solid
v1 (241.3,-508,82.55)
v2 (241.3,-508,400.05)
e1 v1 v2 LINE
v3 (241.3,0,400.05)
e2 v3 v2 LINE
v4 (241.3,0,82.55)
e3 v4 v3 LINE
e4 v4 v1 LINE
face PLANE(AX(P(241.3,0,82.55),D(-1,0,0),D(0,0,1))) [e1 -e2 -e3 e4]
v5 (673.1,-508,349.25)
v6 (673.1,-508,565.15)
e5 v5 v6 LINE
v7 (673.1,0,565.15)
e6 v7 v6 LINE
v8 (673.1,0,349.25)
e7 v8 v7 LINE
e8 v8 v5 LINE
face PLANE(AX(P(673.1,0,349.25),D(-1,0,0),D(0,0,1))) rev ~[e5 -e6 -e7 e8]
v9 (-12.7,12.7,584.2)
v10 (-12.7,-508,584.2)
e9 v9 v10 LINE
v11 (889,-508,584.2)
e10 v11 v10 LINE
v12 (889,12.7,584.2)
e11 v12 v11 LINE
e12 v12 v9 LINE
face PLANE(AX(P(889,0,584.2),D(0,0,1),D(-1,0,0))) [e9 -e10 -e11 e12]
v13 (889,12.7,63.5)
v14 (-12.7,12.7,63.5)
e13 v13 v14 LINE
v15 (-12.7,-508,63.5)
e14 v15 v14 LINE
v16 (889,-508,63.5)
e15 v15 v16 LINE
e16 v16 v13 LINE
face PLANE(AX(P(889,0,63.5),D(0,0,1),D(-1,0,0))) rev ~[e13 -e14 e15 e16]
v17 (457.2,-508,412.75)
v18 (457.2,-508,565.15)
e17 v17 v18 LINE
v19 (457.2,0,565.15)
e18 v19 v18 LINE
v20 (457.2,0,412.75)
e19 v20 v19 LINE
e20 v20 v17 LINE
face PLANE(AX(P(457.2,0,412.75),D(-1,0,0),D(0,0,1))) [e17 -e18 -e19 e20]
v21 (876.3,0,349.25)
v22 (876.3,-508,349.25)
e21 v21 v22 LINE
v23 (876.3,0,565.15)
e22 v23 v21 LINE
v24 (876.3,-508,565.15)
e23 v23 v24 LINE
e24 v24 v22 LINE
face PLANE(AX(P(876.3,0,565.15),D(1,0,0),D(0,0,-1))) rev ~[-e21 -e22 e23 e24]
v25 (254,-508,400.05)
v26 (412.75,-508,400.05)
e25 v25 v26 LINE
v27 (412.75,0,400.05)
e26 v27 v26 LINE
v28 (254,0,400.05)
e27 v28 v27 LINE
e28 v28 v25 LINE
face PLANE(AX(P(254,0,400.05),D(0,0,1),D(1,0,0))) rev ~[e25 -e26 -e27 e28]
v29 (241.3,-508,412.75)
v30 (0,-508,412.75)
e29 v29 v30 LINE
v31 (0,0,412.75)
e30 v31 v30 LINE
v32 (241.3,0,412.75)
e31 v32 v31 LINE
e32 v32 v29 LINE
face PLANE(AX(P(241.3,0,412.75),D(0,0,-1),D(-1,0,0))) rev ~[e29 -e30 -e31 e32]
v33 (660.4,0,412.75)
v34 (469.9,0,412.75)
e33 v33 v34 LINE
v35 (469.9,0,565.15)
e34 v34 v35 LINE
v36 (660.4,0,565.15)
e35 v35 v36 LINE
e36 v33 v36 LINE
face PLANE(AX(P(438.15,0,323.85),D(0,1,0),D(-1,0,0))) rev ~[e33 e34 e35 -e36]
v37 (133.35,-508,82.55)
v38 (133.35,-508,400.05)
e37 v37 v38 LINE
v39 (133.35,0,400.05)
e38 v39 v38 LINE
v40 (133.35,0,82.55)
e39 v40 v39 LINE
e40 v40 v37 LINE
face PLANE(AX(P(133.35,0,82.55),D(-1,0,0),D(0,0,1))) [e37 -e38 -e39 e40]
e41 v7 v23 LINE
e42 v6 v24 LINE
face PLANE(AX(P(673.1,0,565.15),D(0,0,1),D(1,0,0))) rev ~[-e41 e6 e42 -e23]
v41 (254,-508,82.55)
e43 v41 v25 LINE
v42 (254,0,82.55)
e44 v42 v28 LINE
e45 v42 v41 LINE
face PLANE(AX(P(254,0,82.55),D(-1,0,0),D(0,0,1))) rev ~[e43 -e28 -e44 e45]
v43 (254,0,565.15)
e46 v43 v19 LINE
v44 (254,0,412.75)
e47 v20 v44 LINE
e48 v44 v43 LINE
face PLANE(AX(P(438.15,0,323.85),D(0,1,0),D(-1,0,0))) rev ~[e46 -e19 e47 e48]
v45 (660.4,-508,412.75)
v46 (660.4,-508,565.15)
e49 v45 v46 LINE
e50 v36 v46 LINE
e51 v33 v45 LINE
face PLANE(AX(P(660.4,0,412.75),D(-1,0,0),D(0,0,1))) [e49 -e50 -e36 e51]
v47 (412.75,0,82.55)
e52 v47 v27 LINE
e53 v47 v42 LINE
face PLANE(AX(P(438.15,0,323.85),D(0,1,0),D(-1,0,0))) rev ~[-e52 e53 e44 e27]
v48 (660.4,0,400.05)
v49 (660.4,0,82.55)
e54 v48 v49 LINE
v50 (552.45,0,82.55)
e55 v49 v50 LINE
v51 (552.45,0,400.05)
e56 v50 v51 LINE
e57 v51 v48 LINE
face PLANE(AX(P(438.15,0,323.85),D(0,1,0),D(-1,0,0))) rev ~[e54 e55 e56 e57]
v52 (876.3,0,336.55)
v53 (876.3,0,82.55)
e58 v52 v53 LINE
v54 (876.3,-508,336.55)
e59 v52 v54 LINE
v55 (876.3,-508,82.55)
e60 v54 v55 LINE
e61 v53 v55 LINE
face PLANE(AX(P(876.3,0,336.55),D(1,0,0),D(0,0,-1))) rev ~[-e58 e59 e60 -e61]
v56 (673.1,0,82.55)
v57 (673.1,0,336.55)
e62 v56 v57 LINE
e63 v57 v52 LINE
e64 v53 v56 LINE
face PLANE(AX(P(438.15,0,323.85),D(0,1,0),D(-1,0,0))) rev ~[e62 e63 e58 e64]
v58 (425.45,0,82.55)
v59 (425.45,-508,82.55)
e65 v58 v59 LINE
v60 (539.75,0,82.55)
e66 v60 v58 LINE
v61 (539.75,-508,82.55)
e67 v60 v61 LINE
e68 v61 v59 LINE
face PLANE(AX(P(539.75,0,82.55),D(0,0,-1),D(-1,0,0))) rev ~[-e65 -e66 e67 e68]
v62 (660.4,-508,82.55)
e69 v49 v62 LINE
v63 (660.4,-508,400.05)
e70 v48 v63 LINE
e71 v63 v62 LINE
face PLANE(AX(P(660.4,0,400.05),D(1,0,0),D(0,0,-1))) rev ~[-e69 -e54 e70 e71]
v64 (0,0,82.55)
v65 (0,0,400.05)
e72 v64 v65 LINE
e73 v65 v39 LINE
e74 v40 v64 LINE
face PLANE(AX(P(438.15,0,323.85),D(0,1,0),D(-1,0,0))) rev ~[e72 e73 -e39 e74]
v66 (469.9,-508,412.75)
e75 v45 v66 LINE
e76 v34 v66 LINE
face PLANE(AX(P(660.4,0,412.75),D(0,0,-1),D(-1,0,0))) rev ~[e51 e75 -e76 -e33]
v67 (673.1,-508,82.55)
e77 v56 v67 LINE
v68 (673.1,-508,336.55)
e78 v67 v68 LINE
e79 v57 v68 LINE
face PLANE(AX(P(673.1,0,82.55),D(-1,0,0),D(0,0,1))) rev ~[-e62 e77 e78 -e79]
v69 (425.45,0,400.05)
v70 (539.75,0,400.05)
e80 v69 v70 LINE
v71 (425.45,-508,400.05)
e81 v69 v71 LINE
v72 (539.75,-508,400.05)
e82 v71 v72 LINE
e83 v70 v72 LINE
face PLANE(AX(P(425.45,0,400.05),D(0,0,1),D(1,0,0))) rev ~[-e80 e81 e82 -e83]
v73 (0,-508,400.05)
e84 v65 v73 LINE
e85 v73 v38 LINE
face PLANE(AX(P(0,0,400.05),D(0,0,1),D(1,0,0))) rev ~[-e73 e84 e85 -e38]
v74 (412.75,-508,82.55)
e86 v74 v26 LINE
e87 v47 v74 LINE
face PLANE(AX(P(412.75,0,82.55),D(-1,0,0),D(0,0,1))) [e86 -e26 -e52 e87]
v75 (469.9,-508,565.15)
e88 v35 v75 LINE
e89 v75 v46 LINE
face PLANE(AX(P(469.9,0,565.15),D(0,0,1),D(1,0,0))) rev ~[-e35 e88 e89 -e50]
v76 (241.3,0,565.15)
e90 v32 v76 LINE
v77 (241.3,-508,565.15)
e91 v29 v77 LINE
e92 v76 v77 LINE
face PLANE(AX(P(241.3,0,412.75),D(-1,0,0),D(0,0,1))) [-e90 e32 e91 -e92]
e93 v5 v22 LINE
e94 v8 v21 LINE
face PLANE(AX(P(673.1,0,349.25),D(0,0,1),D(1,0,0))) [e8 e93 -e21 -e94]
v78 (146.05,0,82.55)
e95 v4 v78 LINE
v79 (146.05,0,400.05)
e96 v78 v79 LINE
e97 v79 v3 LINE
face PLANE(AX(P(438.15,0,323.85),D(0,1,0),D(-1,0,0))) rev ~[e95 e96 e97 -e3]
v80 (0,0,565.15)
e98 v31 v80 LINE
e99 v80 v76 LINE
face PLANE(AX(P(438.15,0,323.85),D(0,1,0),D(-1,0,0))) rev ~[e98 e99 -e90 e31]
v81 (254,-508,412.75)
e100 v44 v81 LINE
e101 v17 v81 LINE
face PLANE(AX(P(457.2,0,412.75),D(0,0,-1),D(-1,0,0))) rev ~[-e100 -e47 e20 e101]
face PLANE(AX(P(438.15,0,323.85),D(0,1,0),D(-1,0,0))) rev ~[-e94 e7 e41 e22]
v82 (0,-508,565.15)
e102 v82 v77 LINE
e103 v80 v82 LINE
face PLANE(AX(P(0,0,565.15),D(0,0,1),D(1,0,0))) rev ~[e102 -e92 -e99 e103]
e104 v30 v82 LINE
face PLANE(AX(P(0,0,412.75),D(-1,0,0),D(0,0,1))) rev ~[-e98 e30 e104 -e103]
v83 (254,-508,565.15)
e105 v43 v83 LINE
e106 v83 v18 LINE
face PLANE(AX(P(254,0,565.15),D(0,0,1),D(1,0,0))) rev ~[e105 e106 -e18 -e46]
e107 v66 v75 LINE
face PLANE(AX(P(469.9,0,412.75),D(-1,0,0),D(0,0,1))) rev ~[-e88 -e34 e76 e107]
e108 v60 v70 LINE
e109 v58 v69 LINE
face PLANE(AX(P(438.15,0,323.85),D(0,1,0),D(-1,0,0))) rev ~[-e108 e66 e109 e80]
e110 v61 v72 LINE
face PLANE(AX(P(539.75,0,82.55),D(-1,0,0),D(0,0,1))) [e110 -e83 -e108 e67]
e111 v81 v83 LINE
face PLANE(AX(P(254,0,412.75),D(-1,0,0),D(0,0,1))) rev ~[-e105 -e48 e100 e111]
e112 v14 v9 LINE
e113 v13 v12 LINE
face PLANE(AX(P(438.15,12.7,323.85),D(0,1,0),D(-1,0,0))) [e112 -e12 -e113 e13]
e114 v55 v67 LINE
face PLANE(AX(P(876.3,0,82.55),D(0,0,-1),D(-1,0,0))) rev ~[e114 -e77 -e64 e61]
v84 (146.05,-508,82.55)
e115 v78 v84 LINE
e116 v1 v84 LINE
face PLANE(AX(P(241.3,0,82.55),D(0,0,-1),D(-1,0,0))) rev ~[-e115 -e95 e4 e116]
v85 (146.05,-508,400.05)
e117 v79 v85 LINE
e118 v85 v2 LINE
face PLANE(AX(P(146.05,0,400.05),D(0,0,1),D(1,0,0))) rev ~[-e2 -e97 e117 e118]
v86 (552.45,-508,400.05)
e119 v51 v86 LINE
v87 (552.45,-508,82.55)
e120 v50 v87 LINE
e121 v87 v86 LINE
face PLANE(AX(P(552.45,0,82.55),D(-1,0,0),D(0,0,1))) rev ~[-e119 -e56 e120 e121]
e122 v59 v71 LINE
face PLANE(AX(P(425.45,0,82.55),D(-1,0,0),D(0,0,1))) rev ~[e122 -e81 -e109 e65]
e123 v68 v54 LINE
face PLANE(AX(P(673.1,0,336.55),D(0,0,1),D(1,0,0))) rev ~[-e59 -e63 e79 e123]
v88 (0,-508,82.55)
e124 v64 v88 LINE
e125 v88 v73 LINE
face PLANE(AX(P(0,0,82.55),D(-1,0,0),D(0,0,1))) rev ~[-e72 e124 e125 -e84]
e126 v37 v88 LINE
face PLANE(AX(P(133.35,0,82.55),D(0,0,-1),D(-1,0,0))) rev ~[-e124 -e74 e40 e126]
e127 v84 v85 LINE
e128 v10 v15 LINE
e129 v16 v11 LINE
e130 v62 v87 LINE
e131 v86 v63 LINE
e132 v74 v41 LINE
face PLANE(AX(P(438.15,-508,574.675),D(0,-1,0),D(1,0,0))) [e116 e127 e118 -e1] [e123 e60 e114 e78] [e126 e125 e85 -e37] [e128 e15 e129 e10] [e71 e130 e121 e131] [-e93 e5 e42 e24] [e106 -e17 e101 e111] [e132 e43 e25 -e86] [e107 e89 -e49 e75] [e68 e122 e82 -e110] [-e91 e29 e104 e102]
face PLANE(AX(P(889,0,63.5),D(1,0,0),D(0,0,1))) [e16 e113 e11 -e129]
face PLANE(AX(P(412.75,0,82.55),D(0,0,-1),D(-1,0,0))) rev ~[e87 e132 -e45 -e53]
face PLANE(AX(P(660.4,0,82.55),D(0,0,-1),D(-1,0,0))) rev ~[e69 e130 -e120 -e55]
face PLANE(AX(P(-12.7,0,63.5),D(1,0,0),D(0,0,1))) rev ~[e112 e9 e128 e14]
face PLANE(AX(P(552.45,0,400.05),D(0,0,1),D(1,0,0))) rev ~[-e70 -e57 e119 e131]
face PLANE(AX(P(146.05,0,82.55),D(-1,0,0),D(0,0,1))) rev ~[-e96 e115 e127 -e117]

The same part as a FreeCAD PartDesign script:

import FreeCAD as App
import Part
import Sketcher
from FreeCAD import Vector
Q = App.Units.Quantity

doc = App.newDocument("Part")
body = doc.addObject("PartDesign::Body", "Body")

sketch1 = body.newObject("Sketcher::SketchObject", "Sketch")
sketch1.AttachmentSupport = (doc.getObject("XZ_Plane"), [""])
sketch1.MapMode = "FlatFace"
sketch1.addGeometry([
    Part.LineSegment(Vector(-13, 584, 0), Vector(-13, 64, 0)),
    Part.LineSegment(Vector(-13, 64, 0), Vector(889, 64, 0)),
    Part.LineSegment(Vector(889, 64, 0), Vector(889, 584, 0)),
    Part.LineSegment(Vector(889, 584, 0), Vector(-13, 584, 0)),
    Part.LineSegment(Vector(876, 83, 0), Vector(673, 83, 0)),
    Part.LineSegment(Vector(673, 83, 0), Vector(673, 337, 0)),
    Part.LineSegment(Vector(673, 337, 0), Vector(876, 337, 0)),
    Part.LineSegment(Vector(876, 337, 0), Vector(876, 83, 0)),
    Part.LineSegment(Vector(876, 349, 0), Vector(673, 349, 0)),
    Part.LineSegment(Vector(673, 349, 0), Vector(673, 565, 0)),
    Part.LineSegment(Vector(673, 565, 0), Vector(876, 565, 0)),
    Part.LineSegment(Vector(876, 565, 0), Vector(876, 349, 0)),
    Part.LineSegment(Vector(660, 413, 0), Vector(470, 413, 0)),
    Part.LineSegment(Vector(470, 413, 0), Vector(470, 565, 0)),
    Part.LineSegment(Vector(470, 565, 0), Vector(660, 565, 0)),
    Part.LineSegment(Vector(660, 565, 0), Vector(660, 413, 0)),
    Part.LineSegment(Vector(660, 83, 0), Vector(552, 83, 0)),
    Part.LineSegment(Vector(552, 83, 0), Vector(552, 400, 0)),
    Part.LineSegment(Vector(552, 400, 0), Vector(660, 400, 0)),
    Part.LineSegment(Vector(660, 400, 0), Vector(660, 83, 0)),
    Part.LineSegment(Vector(540, 83, 0), Vector(425, 83, 0)),
    Part.LineSegment(Vector(425, 83, 0), Vector(425, 400, 0)),
    Part.LineSegment(Vector(425, 400, 0), Vector(540, 400, 0)),
    Part.LineSegment(Vector(540, 400, 0), Vector(540, 83, 0)),
    Part.LineSegment(Vector(457, 413, 0), Vector(254, 413, 0)),
    Part.LineSegment(Vector(254, 413, 0), Vector(254, 565, 0)),
    Part.LineSegment(Vector(254, 565, 0), Vector(457, 565, 0)),
    Part.LineSegment(Vector(457, 565, 0), Vector(457, 413, 0)),
    Part.LineSegment(Vector(413, 83, 0), Vector(254, 83, 0)),
    Part.LineSegment(Vector(254, 83, 0), Vector(254, 400, 0)),
    Part.LineSegment(Vector(254, 400, 0), Vector(413, 400, 0)),
    Part.LineSegment(Vector(413, 400, 0), Vector(413, 83, 0)),
    Part.LineSegment(Vector(0, 83, 0), Vector(0, 400, 0)),
    Part.LineSegment(Vector(0, 400, 0), Vector(133, 400, 0)),
    Part.LineSegment(Vector(133, 400, 0), Vector(133, 83, 0)),
    Part.LineSegment(Vector(133, 83, 0), Vector(0, 83, 0)),
    Part.LineSegment(Vector(146, 83, 0), Vector(146, 400, 0)),
    Part.LineSegment(Vector(146, 400, 0), Vector(241, 400, 0)),
    Part.LineSegment(Vector(241, 400, 0), Vector(241, 83, 0)),
    Part.LineSegment(Vector(241, 83, 0), Vector(146, 83, 0)),
    Part.LineSegment(Vector(0, 413, 0), Vector(0, 565, 0)),
    Part.LineSegment(Vector(0, 565, 0), Vector(241, 565, 0)),
    Part.LineSegment(Vector(241, 565, 0), Vector(241, 413, 0)),
    Part.LineSegment(Vector(241, 413, 0), Vector(0, 413, 0)),
], False)
sketch1.addConstraint([
    Sketcher.Constraint("Coincident", 0, 2, 1, 1),
    Sketcher.Constraint("Coincident", 1, 2, 2, 1),
    Sketcher.Constraint("Coincident", 2, 2, 3, 1),
    Sketcher.Constraint("Coincident", 3, 2, 0, 1),
    Sketcher.Constraint("Coincident", 4, 2, 5, 1),
    Sketcher.Constraint("Coincident", 5, 2, 6, 1),
    Sketcher.Constraint("Coincident", 6, 2, 7, 1),
    Sketcher.Constraint("Coincident", 7, 2, 4, 1),
    Sketcher.Constraint("Coincident", 8, 2, 9, 1),
    Sketcher.Constraint("Coincident", 9, 2, 10, 1),
    Sketcher.Constraint("Coincident", 10, 2, 11, 1),
    Sketcher.Constraint("Coincident", 11, 2, 8, 1),
    Sketcher.Constraint("Coincident", 12, 2, 13, 1),
    Sketcher.Constraint("Coincident", 13, 2, 14, 1),
    Sketcher.Constraint("Coincident", 14, 2, 15, 1),
    Sketcher.Constraint("Coincident", 15, 2, 12, 1),
    Sketcher.Constraint("Coincident", 16, 2, 17, 1),
    Sketcher.Constraint("Coincident", 17, 2, 18, 1),
    Sketcher.Constraint("Coincident", 18, 2, 19, 1),
    Sketcher.Constraint("Coincident", 19, 2, 16, 1),
    Sketcher.Constraint("Coincident", 20, 2, 21, 1),
    Sketcher.Constraint("Coincident", 21, 2, 22, 1),
    Sketcher.Constraint("Coincident", 22, 2, 23, 1),
    Sketcher.Constraint("Coincident", 23, 2, 20, 1),
    Sketcher.Constraint("Coincident", 24, 2, 25, 1),
    Sketcher.Constraint("Coincident", 25, 2, 26, 1),
    Sketcher.Constraint("Coincident", 26, 2, 27, 1),
    Sketcher.Constraint("Coincident", 27, 2, 24, 1),
    Sketcher.Constraint("Coincident", 28, 2, 29, 1),
    Sketcher.Constraint("Coincident", 29, 2, 30, 1),
    Sketcher.Constraint("Coincident", 30, 2, 31, 1),
    Sketcher.Constraint("Coincident", 31, 2, 28, 1),
    Sketcher.Constraint("Coincident", 32, 2, 33, 1),
    Sketcher.Constraint("Coincident", 33, 2, 34, 1),
    Sketcher.Constraint("Coincident", 34, 2, 35, 1),
    Sketcher.Constraint("Coincident", 35, 2, 32, 1),
    Sketcher.Constraint("Coincident", 36, 2, 37, 1),
    Sketcher.Constraint("Coincident", 37, 2, 38, 1),
    Sketcher.Constraint("Coincident", 38, 2, 39, 1),
    Sketcher.Constraint("Coincident", 39, 2, 36, 1),
    Sketcher.Constraint("Coincident", 40, 2, 41, 1),
    Sketcher.Constraint("Coincident", 41, 2, 42, 1),
    Sketcher.Constraint("Coincident", 42, 2, 43, 1),
    Sketcher.Constraint("Coincident", 43, 2, 40, 1),
    Sketcher.Constraint("Vertical", 0),
    Sketcher.Constraint("Horizontal", 1),
    Sketcher.Constraint("Vertical", 2),
    Sketcher.Constraint("Horizontal", 3),
    Sketcher.Constraint("Horizontal", 4),
    Sketcher.Constraint("Vertical", 5),
    Sketcher.Constraint("Horizontal", 6),
    Sketcher.Constraint("Vertical", 7),
    Sketcher.Constraint("Horizontal", 8),
    Sketcher.Constraint("Vertical", 9),
    Sketcher.Constraint("Horizontal", 10),
    Sketcher.Constraint("Vertical", 11),
    Sketcher.Constraint("Horizontal", 12),
    Sketcher.Constraint("Vertical", 13),
    Sketcher.Constraint("Horizontal", 14),
    Sketcher.Constraint("Vertical", 15),
    Sketcher.Constraint("Horizontal", 16),
    Sketcher.Constraint("Vertical", 17),
    Sketcher.Constraint("Horizontal", 18),
    Sketcher.Constraint("Vertical", 19),
    Sketcher.Constraint("Horizontal", 20),
    Sketcher.Constraint("Vertical", 21),
    Sketcher.Constraint("Horizontal", 22),
    Sketcher.Constraint("Vertical", 23),
    Sketcher.Constraint("Horizontal", 24),
    Sketcher.Constraint("Vertical", 25),
    Sketcher.Constraint("Horizontal", 26),
    Sketcher.Constraint("Vertical", 27),
    Sketcher.Constraint("Horizontal", 28),
    Sketcher.Constraint("Vertical", 29),
    Sketcher.Constraint("Horizontal", 30),
    Sketcher.Constraint("Vertical", 31),
    Sketcher.Constraint("Vertical", 32),
    Sketcher.Constraint("Horizontal", 33),
    Sketcher.Constraint("Vertical", 34),
    Sketcher.Constraint("Horizontal", 35),
    Sketcher.Constraint("Vertical", 36),
    Sketcher.Constraint("Horizontal", 37),
    Sketcher.Constraint("Vertical", 38),
    Sketcher.Constraint("Horizontal", 39),
    Sketcher.Constraint("Vertical", 40),
    Sketcher.Constraint("Horizontal", 41),
    Sketcher.Constraint("Vertical", 42),
    Sketcher.Constraint("Horizontal", 43),
    Sketcher.Constraint("PointOnObject", 32, 2, -2),
    Sketcher.Constraint("PointOnObject", 40, 2, -2),
    Sketcher.Constraint("Horizontal", 10, 2, 13, 2),
    Sketcher.Constraint("Horizontal", 7, 2, 16, 2),
    Sketcher.Constraint("Horizontal", 19, 2, 20, 2),
    Sketcher.Constraint("Horizontal", 18, 2, 21, 2),
    Sketcher.Constraint("Horizontal", 15, 2, 24, 2),
    Sketcher.Constraint("Horizontal", 14, 2, 25, 2),
    Sketcher.Constraint("Horizontal", 23, 2, 28, 2),
    Sketcher.Constraint("Horizontal", 22, 2, 29, 2),
    Sketcher.Constraint("Horizontal", 30, 2, 32, 2),
    Sketcher.Constraint("Horizontal", 31, 2, 34, 2),
    Sketcher.Constraint("Horizontal", 33, 2, 36, 2),
    Sketcher.Constraint("Horizontal", 35, 2, 38, 2),
    Sketcher.Constraint("Horizontal", 26, 2, 40, 2),
    Sketcher.Constraint("Horizontal", 27, 2, 42, 2),
    Sketcher.Constraint("Vertical", 5, 2, 8, 2),
    Sketcher.Constraint("Vertical", 7, 2, 10, 2),
    Sketcher.Constraint("Vertical", 15, 2, 18, 2),
    Sketcher.Constraint("Vertical", 25, 2, 28, 2),
    Sketcher.Constraint("Vertical", 38, 2, 41, 2),
    Sketcher.Constraint("Equal", 10, 24),
    Sketcher.Constraint("DistanceX", 4, 2, 4, 1, Q("8 in")),
    Sketcher.Constraint("DistanceY", 5, 1, 5, 2, Q("10 in")),
    Sketcher.Constraint("DistanceY", 13, 1, 13, 2, Q("6 in")),
    Sketcher.Constraint("DistanceX", 1, 1, 1, 2, Q("35.5 in")),
    Sketcher.Constraint("DistanceX", 12, 2, 12, 1, Q("7.5 in")),
    Sketcher.Constraint("DistanceX", 20, 2, 20, 1, Q("4.5 in")),
    Sketcher.Constraint("DistanceX", 41, 1, 41, 2, Q("9.5 in")),
    Sketcher.Constraint("DistanceY", 0, 2, 0, 1, Q("20.5 in")),
    Sketcher.Constraint("DistanceY", 9, 1, 9, 2, Q("8.5 in")),
    Sketcher.Constraint("DistanceY", 17, 1, 17, 2, Q("12.5 in")),
    Sketcher.Constraint("DistanceX", -1, 1, 1, 2, Q("35 in")),
    Sketcher.Constraint("DistanceY", -1, 1, 2, 2, Q("23 in")),
    Sketcher.Constraint("DistanceX", -1, 1, 14, 2, Q("26 in")),
    Sketcher.Constraint("DistanceX", -1, 1, 24, 2, Q("10 in")),
    Sketcher.Constraint("DistanceX", 0, 2, 4, 2, Q("27 in")),
    Sketcher.Constraint("DistanceY", 5, 2, 9, 2, Q("9 in")),
    Sketcher.Constraint("DistanceX", 20, 2, 16, 2, Q("5 in")),
    Sketcher.Constraint("DistanceX", 30, 2, 22, 2, Q("5 in")),
    Sketcher.Constraint("DistanceX", 34, 2, 31, 2, Q("11 in")),
    Sketcher.Constraint("DistanceX", 16, 2, 16, 1, Q("4.25 in")),
    Sketcher.Constraint("DistanceX", 37, 1, 37, 2, Q("3.75 in")),
    Sketcher.Constraint("DistanceY", -1, 1, 4, 2, Q("3.25 in")),
])
pad1 = body.newObject("PartDesign::Pad", "Pad")
pad1.Profile = sketch1
pad1.Length = Q("20 in")

sketch2 = body.newObject("Sketcher::SketchObject", "Sketch001")
sketch2.AttachmentSupport = (doc.getObject("XZ_Plane"), [""])
sketch2.MapMode = "FlatFace"
sketch2.addGeometry([
    Part.LineSegment(Vector(889, 584, 0), Vector(889, 64, 0)),
    Part.LineSegment(Vector(889, 64, 0), Vector(-13, 64, 0)),
    Part.LineSegment(Vector(-13, 64, 0), Vector(-13, 584, 0)),
    Part.LineSegment(Vector(-13, 584, 0), Vector(889, 584, 0)),
], False)
sketch2.addConstraint([
    Sketcher.Constraint("Coincident", 0, 2, 1, 1),
    Sketcher.Constraint("Coincident", 1, 2, 2, 1),
    Sketcher.Constraint("Coincident", 2, 2, 3, 1),
    Sketcher.Constraint("Coincident", 3, 2, 0, 1),
    Sketcher.Constraint("Vertical", 0),
    Sketcher.Constraint("Horizontal", 1),
    Sketcher.Constraint("Vertical", 2),
    Sketcher.Constraint("Horizontal", 3),
    Sketcher.Constraint("DistanceX", 1, 2, 1, 1, Q("35.5 in")),
    Sketcher.Constraint("DistanceY", 0, 2, 0, 1, Q("20.5 in")),
    Sketcher.Constraint("DistanceX", -1, 1, 0, 2, Q("35 in")),
    Sketcher.Constraint("DistanceY", -1, 1, 2, 2, Q("23 in")),
])
pad2 = body.newObject("PartDesign::Pad", "Pad001")
pad2.Profile = sketch2
pad2.Length = Q("0.5 in")
pad2.Reversed = True

doc.recompute()
